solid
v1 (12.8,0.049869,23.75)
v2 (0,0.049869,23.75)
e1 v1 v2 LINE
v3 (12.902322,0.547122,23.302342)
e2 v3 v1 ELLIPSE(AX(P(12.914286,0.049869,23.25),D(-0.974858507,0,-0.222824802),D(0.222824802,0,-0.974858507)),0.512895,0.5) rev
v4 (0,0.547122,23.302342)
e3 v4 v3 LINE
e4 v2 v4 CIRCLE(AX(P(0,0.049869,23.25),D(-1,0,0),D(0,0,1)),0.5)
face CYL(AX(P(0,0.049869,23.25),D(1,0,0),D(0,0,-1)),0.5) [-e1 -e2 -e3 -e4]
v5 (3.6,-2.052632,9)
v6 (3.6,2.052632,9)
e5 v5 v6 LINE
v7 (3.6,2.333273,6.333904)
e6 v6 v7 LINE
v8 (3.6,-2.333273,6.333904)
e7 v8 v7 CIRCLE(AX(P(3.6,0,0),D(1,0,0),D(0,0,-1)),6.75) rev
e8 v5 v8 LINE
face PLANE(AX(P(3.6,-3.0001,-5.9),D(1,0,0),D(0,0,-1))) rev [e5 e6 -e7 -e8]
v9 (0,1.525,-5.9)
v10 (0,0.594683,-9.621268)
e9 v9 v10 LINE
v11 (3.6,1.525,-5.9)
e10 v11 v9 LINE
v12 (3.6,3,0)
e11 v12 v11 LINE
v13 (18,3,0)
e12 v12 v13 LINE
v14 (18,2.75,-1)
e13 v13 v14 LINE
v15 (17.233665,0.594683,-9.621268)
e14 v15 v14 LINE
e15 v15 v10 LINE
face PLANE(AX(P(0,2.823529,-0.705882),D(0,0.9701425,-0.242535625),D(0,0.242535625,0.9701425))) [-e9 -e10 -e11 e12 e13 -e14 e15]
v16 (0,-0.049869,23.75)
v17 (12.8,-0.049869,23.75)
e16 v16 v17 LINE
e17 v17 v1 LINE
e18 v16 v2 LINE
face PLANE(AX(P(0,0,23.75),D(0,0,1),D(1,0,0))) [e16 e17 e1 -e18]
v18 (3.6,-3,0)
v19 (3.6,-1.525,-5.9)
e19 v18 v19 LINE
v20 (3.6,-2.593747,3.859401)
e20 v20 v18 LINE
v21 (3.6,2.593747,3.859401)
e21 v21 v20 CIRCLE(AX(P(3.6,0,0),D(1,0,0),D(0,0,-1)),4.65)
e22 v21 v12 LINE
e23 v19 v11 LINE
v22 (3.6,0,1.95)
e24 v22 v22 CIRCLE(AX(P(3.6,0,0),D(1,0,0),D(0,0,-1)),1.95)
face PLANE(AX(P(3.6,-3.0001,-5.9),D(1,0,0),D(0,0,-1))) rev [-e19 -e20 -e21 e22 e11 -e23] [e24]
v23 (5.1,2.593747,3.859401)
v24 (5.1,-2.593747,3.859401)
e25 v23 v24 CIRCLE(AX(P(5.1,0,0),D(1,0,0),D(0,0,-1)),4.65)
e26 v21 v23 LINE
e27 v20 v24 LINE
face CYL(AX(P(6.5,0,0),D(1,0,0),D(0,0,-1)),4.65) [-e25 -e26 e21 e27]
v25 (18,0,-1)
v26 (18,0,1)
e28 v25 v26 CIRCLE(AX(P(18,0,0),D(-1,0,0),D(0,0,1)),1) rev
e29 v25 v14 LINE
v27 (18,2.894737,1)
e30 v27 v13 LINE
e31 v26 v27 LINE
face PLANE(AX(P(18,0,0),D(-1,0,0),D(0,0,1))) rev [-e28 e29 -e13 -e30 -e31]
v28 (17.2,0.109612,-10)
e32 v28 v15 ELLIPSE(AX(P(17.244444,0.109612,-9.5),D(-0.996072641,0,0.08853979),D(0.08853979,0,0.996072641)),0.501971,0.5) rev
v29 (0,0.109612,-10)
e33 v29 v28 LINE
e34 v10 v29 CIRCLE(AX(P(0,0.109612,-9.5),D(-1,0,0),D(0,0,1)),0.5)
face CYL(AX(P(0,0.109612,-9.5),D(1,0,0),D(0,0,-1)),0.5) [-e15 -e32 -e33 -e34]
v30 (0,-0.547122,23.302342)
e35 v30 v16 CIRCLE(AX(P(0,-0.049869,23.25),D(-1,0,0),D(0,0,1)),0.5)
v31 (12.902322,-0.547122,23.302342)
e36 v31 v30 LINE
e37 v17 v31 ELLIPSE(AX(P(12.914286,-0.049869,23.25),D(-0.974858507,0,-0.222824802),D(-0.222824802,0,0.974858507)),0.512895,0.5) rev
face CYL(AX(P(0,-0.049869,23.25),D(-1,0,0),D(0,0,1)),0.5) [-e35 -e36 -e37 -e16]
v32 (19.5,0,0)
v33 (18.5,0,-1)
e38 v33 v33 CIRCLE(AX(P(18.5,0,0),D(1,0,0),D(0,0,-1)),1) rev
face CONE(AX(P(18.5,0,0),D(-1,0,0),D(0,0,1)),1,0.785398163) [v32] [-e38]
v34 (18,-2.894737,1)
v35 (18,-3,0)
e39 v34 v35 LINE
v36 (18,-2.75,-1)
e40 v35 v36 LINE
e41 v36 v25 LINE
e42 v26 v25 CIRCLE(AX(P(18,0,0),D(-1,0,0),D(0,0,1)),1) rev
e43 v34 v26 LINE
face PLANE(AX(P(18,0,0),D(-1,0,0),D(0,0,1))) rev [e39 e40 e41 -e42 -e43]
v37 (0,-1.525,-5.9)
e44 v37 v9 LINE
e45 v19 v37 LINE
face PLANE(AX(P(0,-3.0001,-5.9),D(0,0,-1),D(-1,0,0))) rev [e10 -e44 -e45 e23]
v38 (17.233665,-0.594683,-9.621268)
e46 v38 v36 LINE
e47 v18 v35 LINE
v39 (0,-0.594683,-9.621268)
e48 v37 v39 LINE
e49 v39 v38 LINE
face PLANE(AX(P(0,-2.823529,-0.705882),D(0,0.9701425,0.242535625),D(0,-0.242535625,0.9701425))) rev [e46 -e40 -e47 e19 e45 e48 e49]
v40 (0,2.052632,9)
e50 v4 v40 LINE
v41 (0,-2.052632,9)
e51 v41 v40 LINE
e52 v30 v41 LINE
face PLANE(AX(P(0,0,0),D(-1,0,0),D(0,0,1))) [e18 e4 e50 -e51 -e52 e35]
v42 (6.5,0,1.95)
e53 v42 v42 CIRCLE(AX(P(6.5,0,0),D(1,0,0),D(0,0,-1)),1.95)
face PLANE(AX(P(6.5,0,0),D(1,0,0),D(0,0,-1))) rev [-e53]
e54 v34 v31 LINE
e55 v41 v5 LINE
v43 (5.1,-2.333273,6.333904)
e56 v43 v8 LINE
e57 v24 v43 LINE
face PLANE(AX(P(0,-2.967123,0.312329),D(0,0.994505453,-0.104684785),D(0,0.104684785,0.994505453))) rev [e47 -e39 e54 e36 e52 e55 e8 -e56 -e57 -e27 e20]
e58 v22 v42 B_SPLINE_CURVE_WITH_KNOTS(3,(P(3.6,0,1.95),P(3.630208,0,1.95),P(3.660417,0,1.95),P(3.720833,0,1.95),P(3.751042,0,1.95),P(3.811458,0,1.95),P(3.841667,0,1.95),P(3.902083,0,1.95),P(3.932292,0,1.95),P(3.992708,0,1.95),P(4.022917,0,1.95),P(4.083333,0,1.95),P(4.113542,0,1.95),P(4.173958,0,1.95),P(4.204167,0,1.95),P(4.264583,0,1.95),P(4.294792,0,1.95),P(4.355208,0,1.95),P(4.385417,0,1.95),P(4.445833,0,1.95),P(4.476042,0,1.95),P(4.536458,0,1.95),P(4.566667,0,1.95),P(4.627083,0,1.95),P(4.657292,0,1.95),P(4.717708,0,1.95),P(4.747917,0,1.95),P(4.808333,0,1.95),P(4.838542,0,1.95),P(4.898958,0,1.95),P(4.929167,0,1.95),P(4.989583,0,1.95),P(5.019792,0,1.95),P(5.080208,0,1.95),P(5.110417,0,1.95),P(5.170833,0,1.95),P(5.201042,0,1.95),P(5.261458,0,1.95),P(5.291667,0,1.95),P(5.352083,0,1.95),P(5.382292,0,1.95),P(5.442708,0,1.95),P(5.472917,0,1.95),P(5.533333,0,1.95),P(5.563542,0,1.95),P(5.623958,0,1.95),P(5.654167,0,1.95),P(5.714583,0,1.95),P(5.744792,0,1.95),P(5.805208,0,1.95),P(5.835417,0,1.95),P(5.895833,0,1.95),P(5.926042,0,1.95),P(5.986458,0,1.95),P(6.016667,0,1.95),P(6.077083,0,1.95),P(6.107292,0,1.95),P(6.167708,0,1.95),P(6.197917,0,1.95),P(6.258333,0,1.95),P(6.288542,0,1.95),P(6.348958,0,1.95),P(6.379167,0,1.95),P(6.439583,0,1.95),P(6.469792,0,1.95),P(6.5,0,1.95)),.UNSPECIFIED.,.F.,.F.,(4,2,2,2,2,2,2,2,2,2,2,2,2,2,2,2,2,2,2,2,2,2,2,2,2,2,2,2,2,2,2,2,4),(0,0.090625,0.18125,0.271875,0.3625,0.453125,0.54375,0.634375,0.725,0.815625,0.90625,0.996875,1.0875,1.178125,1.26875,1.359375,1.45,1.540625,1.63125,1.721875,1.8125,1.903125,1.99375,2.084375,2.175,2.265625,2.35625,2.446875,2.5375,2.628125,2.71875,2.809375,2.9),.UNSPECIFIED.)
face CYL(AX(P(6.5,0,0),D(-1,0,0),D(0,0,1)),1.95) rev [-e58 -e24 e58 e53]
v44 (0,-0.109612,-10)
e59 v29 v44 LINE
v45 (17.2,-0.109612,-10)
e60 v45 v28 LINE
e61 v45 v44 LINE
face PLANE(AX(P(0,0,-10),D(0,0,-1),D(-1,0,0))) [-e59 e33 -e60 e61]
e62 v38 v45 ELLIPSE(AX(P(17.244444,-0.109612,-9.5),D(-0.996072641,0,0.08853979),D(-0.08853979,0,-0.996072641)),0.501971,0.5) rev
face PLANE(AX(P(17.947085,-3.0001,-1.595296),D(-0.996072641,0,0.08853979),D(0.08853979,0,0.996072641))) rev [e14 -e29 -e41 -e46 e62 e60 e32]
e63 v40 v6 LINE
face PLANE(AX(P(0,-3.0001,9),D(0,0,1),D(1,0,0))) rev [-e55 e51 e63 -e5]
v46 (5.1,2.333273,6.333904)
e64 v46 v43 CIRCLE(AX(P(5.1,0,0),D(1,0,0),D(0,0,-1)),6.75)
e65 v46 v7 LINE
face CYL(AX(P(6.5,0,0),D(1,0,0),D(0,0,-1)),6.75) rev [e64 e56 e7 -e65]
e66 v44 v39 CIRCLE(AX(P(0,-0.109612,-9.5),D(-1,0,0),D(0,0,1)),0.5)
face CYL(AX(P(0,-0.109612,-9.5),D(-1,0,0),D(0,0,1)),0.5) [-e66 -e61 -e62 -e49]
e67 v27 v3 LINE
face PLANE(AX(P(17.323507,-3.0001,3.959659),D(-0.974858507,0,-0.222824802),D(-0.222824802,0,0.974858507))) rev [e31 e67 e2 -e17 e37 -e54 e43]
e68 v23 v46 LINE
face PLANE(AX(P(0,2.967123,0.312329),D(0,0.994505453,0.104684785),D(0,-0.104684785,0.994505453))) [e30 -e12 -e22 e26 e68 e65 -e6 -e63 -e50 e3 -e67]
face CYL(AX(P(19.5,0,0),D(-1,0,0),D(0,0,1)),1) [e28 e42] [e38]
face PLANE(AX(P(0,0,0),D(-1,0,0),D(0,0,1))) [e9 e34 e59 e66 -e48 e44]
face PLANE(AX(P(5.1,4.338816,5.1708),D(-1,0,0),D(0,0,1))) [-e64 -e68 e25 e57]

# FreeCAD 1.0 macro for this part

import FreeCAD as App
import Part
import Sketcher


def edges_at(feature, points):
    """Names of the edges that pass closest to the given points."""
    edges = feature.Shape.Edges
    near = lambda p: min(range(len(edges)), key=lambda i: edges[i].distToShape(Part.Vertex(*p))[0])
    return sorted({f"Edge{near(p) + 1}" for p in points})


def add_polygon(sketch, points):
    """Adds a closed chain of lines whose ends are joined by coincident constraints."""
    first, n = sketch.GeometryCount, len(points)
    for a, b in zip(points, points[1:] + points[:1]):
        sketch.addGeometry(Part.LineSegment(App.Vector(*a, 0), App.Vector(*b, 0)), False)
    for i in range(n):
        sketch.addConstraint(Sketcher.Constraint("Coincident", first + i, 2, first + (i + 1) % n, 1))

doc = App.newDocument("Part")
body = doc.addObject("PartDesign::Body", "Body")

# Sketch on YZ plane
sketch1 = body.newObject("Sketcher::SketchObject", "Sketch")
sketch1.AttachmentSupport = (doc.getObject("YZ_Plane"), [""])
sketch1.MapMode = "FlatFace"
add_polygon(sketch1, [(0.5, 23.75), (-0.5, 23.75), (-3, 0), (-0.5, -10), (0.5, -10), (3, 0)])  # lines 0-5
sketch1.addConstraint([
    Sketcher.Constraint("Horizontal", 0),
    Sketcher.Constraint("Horizontal", 3),
    Sketcher.Constraint("Symmetric", 1, 2, 4, 2, -1, 1),
    Sketcher.Constraint("PointOnObject", 1, 2, -1),
    Sketcher.Constraint("Vertical", 0, 2, 2, 2),
    Sketcher.Constraint("Vertical", 3, 2, 5, 2),
    Sketcher.Constraint("Equal", 2, 4),
    Sketcher.Constraint("DistanceX", 0, 2, 0, 1, 1.0),
    Sketcher.Constraint("DistanceX", 1, 2, -1, 1, 3.0),
    Sketcher.Constraint("DistanceY", 2, 2, -1, 1, 10.0),
    Sketcher.Constraint("DistanceY", -1, 1, 0, 2, 23.75),
])

# Sketch on YZ plane
sketch2 = body.newObject("Sketcher::SketchObject", "Sketch001")
sketch2.AttachmentSupport = (doc.getObject("YZ_Plane"), [""])
sketch2.MapMode = "FlatFace"
sketch2.AttachmentOffset = App.Placement(App.Vector(0, 0, 18), App.Rotation())
add_polygon(sketch2, [(0.5, -10), (3, 0), (0.5, 23.75), (-0.5, 23.75), (-3, 0), (-0.5, -10)])  # lines 0-5
sketch2.addConstraint([
    Sketcher.Constraint("Horizontal", 2),
    Sketcher.Constraint("Horizontal", 5),
    Sketcher.Constraint("Symmetric", 0, 2, 3, 2, -1, 1),
    Sketcher.Constraint("PointOnObject", 0, 2, -1),
    Sketcher.Constraint("Vertical", 2, 2, 4, 2),
    Sketcher.Constraint("Vertical", 1, 2, 5, 2),
    Sketcher.Constraint("Equal", 1, 3),
    Sketcher.Constraint("DistanceX", 2, 2, 2, 1, 1.0),
    Sketcher.Constraint("DistanceX", -1, 1, 0, 2, 3.0),
    Sketcher.Constraint("DistanceY", 4, 2, -1, 1, 10.0),
    Sketcher.Constraint("DistanceY", -1, 1, 1, 2, 23.75),
])

additiveloft = body.newObject("PartDesign::AdditiveLoft", "AdditiveLoft")
additiveloft.Profile = sketch1
additiveloft.Sections = [sketch2]

# Sketch on YZ plane
sketch3 = body.newObject("Sketcher::SketchObject", "Sketch002")
sketch3.AttachmentSupport = (doc.getObject("YZ_Plane"), [""])
sketch3.MapMode = "FlatFace"
sketch3.addGeometry(Part.Circle(App.Vector(0, 0, 0), App.Vector(0, 0, 1), 1.95), False)
sketch3.addConstraint([
    Sketcher.Constraint("Coincident", 0, 3, -1, 1),
    Sketcher.Constraint("Diameter", 0, 3.9),
])
pocket1 = body.newObject("PartDesign::Pocket", "Pocket")
pocket1.Profile = sketch3
pocket1.Length = 6.5
pocket1.Reversed = True

# Sketch on XZ plane
sketch4 = body.newObject("Sketcher::SketchObject", "Sketch003")
sketch4.AttachmentSupport = (doc.getObject("XZ_Plane"), [""])
sketch4.MapMode = "FlatFace"
add_polygon(sketch4, [(0, -5.9), (0, 9), (3.6, 9), (3.6, -5.9)])  # lines 0-3
sketch4.addConstraint([
    Sketcher.Constraint("Vertical", 0),
    Sketcher.Constraint("Horizontal", 1),
    Sketcher.Constraint("Vertical", 2),
    Sketcher.Constraint("Horizontal", 3),
    Sketcher.Constraint("PointOnObject", 0, 2, -2),
    Sketcher.Constraint("DistanceX", 1, 1, 1, 2, 3.6),
    Sketcher.Constraint("DistanceY", 0, 1, 0, 2, 14.9),
    Sketcher.Constraint("DistanceY", -1, 1, 0, 2, 9.0),
])
pocket2 = body.newObject("PartDesign::Pocket", "Pocket001")
pocket2.Profile = sketch4
pocket2.Type = "ThroughAll"
pocket2.Midplane = True

# Sketch on XZ plane
sketch5 = body.newObject("Sketcher::SketchObject", "Sketch004")
sketch5.AttachmentSupport = (doc.getObject("XZ_Plane"), [""])
sketch5.MapMode = "FlatFace"
add_polygon(sketch5, [(3.6, 4.65), (3.6, 6.75), (5.1, 6.75), (5.1, 4.65)])  # lines 0-3
sketch5.addConstraint([
    Sketcher.Constraint("Vertical", 0),
    Sketcher.Constraint("Horizontal", 1),
    Sketcher.Constraint("Vertical", 2),
    Sketcher.Constraint("Horizontal", 3),
    Sketcher.Constraint("DistanceX", 1, 1, 1, 2, 1.5),
    Sketcher.Constraint("DistanceY", 0, 1, 0, 2, 2.1),
    Sketcher.Constraint("DistanceX", -1, 1, 0, 2, 3.6),
    Sketcher.Constraint("DistanceY", -1, 1, 0, 2, 6.75),
])
groove = body.newObject("PartDesign::Groove", "Groove")
groove.Profile = sketch5
groove.ReferenceAxis = (sketch5, ["H_Axis"])
groove.Angle = 40
groove.Reversed = True

# Sketch on XZ plane
sketch6 = body.newObject("Sketcher::SketchObject", "Sketch005")
sketch6.AttachmentSupport = (doc.getObject("XZ_Plane"), [""])
sketch6.MapMode = "FlatFace"
add_polygon(sketch6, [(3.6, 4.65), (3.6, 6.75), (5.1, 6.75), (5.1, 4.65)])  # lines 0-3
sketch6.addConstraint([
    Sketcher.Constraint("Vertical", 0),
    Sketcher.Constraint("Horizontal", 1),
    Sketcher.Constraint("Vertical", 2),
    Sketcher.Constraint("Horizontal", 3),
    Sketcher.Constraint("DistanceX", 1, 1, 1, 2, 1.5),
    Sketcher.Constraint("DistanceY", 0, 1, 0, 2, 2.1),
    Sketcher.Constraint("DistanceX", -1, 1, 0, 2, 3.6),
    Sketcher.Constraint("DistanceY", -1, 1, 0, 2, 6.75),
])
groove2 = body.newObject("PartDesign::Groove", "Groove001")
groove2.Profile = sketch6
groove2.ReferenceAxis = (sketch6, ["H_Axis"])
groove2.Angle = 40

# Sketch on YZ plane
sketch7 = body.newObject("Sketcher::SketchObject", "Sketch006")
sketch7.AttachmentSupport = (doc.getObject("YZ_Plane"), [""])
sketch7.MapMode = "FlatFace"
sketch7.AttachmentOffset = App.Placement(App.Vector(0, 0, 18), App.Rotation())
sketch7.addGeometry(Part.Circle(App.Vector(0, 0, 0), App.Vector(0, 0, 1), 1), False)
sketch7.addConstraint([
    Sketcher.Constraint("Coincident", 0, 3, -1, 1),
    Sketcher.Constraint("Diameter", 0, 2.0),
])
pad1 = body.newObject("PartDesign::Pad", "Pad")
pad1.Profile = sketch7
pad1.Length = 1.5
doc.recompute()

chamfer = body.newObject("PartDesign::Chamfer", "Chamfer")
chamfer.Base = (pad1, edges_at(pad1, [(19.5, 0, -1)]))
chamfer.Size = 1

# Sketch on XZ plane
sketch8 = body.newObject("Sketcher::SketchObject", "Sketch007")
sketch8.AttachmentSupport = (doc.getObject("XZ_Plane"), [""])
sketch8.MapMode = "FlatFace"
add_polygon(sketch8, [(18, -10), (17.2, -10), (18, -1)])  # lines 0-2
add_polygon(sketch8, [(12.8, 23.75), (18, 23.75), (18, 1)])  # lines 3-5
sketch8.addConstraint([
    Sketcher.Constraint("Horizontal", 0),
    Sketcher.Constraint("Vertical", 2),
    Sketcher.Constraint("Horizontal", 3),
    Sketcher.Constraint("Vertical", 4),
    Sketcher.Constraint("Symmetric", 1, 2, 4, 2, -1),
    Sketcher.Constraint("DistanceY", 2, 2, 2, 1, 9.0),
    Sketcher.Constraint("DistanceX", 0, 2, 0, 1, 0.8),
    Sketcher.Constraint("DistanceX", 3, 1, 3, 2, 5.2),
    Sketcher.Constraint("DistanceY", 0, 2, -1, 1, 10.0),
    Sketcher.Constraint("DistanceX", -1, 1, 1, 2, 18.0),
    Sketcher.Constraint("DistanceY", 4, 2, 4, 1, 22.75),
])
pocket3 = body.newObject("PartDesign::Pocket", "Pocket002")
pocket3.Profile = sketch8
pocket3.Type = "ThroughAll"
pocket3.Midplane = True
doc.recompute()

fillet = body.newObject("PartDesign::Fillet", "Fillet")
fillet.Base = (pocket3, edges_at(pocket3, [
    (6.4, 0.5, 23.75),
    (6.4, -0.5, 23.75),
    (8.6, 0.5, -10),
    (8.6, -0.5, -10),
]))
fillet.Radius = 0.5

doc.recompute()
